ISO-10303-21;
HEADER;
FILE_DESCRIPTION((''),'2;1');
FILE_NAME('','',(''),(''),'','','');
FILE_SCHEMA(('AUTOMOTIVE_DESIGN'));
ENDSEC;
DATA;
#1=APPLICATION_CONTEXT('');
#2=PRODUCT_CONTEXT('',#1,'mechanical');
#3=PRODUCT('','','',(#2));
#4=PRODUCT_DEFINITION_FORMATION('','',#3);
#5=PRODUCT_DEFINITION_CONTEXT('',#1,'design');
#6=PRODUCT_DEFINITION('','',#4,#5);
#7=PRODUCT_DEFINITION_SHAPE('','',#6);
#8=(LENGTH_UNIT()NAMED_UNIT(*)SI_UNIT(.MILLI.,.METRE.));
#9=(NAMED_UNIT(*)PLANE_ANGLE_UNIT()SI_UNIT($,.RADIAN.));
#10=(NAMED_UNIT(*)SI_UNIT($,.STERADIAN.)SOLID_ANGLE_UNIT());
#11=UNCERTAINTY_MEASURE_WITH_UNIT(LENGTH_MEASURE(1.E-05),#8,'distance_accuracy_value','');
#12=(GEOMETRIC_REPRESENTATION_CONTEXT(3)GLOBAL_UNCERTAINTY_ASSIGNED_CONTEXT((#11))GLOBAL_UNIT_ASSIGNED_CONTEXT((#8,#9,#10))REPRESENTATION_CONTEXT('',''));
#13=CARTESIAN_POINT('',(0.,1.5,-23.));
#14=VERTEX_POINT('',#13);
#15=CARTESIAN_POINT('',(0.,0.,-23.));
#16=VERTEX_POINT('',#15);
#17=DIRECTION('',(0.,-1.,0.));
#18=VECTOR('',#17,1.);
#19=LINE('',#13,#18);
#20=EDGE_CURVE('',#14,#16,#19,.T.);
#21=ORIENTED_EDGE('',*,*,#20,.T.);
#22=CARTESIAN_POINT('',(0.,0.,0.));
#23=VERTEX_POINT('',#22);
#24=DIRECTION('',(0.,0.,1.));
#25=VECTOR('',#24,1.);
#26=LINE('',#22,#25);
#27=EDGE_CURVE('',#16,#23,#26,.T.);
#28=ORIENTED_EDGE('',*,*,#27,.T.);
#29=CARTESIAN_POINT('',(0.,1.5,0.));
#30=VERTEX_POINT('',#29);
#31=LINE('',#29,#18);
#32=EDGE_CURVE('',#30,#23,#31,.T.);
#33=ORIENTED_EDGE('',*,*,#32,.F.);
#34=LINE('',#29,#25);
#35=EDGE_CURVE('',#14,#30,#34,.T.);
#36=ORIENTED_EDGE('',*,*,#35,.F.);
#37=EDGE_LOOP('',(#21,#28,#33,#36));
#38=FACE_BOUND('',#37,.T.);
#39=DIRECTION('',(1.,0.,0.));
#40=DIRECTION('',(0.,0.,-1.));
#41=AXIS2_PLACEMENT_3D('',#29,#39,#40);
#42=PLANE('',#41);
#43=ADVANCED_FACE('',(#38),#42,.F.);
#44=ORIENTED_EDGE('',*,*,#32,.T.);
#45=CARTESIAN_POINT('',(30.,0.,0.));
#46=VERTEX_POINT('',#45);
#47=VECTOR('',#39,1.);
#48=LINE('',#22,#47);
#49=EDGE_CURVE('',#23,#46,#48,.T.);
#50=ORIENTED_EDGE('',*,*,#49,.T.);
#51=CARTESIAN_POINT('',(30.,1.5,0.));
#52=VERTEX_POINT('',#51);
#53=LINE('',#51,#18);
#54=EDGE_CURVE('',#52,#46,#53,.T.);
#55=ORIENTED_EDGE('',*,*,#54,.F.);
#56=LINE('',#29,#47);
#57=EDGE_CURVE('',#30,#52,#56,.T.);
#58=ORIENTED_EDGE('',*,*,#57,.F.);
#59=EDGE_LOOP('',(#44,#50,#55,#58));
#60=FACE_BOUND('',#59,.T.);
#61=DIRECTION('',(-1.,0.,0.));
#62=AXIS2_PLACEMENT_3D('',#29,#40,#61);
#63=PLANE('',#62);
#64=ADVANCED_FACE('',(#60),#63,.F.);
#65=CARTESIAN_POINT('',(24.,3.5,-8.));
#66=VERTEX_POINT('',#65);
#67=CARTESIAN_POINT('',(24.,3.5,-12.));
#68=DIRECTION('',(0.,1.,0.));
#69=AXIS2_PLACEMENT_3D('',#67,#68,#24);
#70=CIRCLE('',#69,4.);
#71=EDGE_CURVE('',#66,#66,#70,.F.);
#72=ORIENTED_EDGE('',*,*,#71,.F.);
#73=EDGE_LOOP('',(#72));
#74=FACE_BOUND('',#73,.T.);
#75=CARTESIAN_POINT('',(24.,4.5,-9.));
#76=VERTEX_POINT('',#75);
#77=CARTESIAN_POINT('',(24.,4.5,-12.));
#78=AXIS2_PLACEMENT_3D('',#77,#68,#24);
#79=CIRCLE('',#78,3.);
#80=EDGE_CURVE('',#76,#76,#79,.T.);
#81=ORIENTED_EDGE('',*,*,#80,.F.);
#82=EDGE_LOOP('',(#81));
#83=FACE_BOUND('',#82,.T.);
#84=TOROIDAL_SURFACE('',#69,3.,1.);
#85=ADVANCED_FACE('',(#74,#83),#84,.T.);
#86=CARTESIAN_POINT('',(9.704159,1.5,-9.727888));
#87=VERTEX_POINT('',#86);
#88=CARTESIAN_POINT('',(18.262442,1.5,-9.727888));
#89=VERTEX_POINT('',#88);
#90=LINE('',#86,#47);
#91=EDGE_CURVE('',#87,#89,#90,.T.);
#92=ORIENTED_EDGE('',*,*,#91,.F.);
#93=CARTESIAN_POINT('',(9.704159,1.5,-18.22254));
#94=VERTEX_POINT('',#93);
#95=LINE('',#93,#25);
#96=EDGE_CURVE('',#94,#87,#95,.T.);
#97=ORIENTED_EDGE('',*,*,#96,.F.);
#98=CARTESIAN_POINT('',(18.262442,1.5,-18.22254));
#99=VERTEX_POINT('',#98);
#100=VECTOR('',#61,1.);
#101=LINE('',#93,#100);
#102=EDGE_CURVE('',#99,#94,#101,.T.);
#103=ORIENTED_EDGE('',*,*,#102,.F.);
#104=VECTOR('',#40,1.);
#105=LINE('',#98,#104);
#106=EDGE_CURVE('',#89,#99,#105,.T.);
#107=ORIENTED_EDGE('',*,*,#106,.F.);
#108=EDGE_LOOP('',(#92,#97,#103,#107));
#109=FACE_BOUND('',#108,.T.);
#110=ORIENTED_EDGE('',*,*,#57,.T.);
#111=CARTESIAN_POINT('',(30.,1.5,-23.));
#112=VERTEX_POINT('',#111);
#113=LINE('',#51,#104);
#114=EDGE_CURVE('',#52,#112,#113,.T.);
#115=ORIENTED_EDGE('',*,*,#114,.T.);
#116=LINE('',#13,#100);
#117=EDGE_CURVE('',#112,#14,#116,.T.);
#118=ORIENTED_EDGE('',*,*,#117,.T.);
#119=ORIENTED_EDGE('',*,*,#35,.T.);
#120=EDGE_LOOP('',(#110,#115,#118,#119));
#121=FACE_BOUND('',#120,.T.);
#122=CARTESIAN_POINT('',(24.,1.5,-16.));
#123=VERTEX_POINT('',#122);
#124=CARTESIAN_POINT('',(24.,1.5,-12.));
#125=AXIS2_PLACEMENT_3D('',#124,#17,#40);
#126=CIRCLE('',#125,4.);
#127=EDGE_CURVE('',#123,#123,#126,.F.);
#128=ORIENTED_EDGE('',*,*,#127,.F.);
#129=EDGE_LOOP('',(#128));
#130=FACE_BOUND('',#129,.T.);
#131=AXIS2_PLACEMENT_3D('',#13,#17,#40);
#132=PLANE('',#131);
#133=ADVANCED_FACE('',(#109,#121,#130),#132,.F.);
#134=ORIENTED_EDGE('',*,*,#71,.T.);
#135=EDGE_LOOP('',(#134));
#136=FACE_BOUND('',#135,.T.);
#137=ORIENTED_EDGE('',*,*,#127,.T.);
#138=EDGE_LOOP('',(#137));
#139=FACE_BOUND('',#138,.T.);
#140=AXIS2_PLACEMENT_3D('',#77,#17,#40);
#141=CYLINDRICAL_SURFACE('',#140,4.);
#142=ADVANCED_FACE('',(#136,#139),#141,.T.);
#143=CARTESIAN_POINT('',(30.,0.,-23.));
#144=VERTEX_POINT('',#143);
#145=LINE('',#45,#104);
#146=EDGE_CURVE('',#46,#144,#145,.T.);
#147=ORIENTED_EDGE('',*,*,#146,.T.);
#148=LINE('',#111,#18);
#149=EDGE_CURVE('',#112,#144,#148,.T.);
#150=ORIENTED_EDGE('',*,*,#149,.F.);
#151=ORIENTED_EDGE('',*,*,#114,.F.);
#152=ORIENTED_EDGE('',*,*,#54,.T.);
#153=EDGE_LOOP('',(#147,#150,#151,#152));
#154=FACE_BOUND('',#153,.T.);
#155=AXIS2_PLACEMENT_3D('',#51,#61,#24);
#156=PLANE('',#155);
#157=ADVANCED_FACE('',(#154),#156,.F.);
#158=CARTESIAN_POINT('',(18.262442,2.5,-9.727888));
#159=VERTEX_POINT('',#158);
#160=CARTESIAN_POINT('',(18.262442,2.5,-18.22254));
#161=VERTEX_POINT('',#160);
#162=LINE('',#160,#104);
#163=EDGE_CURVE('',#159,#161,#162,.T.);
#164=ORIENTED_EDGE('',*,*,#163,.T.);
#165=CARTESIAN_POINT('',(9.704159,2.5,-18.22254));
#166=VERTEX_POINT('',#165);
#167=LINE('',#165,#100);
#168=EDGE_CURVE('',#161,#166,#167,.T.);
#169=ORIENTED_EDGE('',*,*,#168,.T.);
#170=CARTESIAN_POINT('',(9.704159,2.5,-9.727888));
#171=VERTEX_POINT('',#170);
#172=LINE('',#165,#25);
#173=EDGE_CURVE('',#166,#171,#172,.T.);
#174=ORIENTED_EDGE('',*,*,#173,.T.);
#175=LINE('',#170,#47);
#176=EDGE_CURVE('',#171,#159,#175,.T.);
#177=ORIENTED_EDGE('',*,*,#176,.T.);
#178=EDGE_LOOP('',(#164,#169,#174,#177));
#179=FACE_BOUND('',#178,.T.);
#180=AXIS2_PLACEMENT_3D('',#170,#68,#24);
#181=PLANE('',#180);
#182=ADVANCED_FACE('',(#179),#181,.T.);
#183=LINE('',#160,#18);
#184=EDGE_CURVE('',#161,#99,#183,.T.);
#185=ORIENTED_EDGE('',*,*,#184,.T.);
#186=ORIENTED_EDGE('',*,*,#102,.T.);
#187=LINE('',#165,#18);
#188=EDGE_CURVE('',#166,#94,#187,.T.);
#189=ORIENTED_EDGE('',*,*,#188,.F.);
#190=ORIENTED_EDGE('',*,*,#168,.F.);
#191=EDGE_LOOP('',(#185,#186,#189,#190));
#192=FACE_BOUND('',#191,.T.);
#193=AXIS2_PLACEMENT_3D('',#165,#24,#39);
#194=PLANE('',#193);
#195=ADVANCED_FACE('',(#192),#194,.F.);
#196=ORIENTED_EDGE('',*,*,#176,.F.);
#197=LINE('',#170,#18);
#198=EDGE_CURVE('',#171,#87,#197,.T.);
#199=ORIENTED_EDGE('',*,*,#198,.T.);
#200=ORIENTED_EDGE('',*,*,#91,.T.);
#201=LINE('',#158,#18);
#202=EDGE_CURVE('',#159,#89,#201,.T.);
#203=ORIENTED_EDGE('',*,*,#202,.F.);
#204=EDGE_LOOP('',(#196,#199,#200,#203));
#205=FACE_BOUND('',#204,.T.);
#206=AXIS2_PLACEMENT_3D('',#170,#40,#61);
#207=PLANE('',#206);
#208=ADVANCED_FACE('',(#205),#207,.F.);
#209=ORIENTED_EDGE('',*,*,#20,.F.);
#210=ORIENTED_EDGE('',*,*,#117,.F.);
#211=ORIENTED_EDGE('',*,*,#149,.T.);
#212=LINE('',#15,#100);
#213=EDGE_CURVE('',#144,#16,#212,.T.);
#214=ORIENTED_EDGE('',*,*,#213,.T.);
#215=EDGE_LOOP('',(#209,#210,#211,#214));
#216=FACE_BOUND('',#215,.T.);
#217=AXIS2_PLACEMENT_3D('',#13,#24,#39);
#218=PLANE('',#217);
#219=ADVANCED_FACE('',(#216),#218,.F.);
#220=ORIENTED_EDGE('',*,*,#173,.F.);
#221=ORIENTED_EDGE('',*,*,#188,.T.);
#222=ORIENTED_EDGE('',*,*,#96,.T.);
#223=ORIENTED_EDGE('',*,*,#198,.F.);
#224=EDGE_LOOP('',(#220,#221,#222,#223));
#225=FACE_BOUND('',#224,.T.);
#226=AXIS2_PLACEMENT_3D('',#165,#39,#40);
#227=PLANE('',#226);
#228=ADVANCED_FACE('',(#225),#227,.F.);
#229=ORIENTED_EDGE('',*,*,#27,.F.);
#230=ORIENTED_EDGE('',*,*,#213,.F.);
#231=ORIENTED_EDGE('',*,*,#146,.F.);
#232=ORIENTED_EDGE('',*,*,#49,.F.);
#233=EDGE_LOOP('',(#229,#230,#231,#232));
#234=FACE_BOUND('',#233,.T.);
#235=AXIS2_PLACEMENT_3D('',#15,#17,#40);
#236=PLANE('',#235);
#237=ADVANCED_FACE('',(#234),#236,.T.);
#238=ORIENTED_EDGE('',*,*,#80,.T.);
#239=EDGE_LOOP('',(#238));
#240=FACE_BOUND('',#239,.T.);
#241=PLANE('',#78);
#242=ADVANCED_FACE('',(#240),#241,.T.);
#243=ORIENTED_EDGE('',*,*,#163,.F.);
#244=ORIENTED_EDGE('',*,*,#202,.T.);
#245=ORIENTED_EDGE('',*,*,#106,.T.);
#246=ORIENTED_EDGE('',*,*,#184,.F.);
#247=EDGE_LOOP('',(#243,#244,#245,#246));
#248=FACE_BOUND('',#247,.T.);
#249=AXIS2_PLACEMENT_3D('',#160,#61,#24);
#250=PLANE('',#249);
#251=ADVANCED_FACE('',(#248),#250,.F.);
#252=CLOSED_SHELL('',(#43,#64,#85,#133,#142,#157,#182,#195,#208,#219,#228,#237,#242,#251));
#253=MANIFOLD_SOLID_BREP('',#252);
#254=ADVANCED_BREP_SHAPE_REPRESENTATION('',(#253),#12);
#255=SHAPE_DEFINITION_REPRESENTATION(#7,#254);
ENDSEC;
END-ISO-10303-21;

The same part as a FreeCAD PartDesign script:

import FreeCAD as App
import Part
import Sketcher

V = App.Vector
Q = App.Units.Quantity


def edges_at(feature, points):
    """Names of the edges that pass closest to the given points."""
    edges = feature.Shape.Edges
    near = lambda p: min(range(len(edges)), key=lambda i: edges[i].distToShape(Part.Vertex(*p))[0])
    return sorted({f"Edge{near(p) + 1}" for p in points})


def add_polygon(sketch, points):
    """Adds a closed chain of lines whose ends are joined by coincident constraints."""
    first, n = sketch.GeometryCount, len(points)
    for a, b in zip(points, points[1:] + points[:1]):
        sketch.addGeometry(Part.LineSegment(App.Vector(*a, 0), App.Vector(*b, 0)), False)
    for i in range(n):
        sketch.addConstraint(Sketcher.Constraint("Coincident", first + i, 2, first + (i + 1) % n, 1))

doc = App.newDocument("Part")
params = doc.addObject("Spreadsheet::Sheet", "Params")
for row, (alias, value) in enumerate([
    ("sketch1_width", "30 mm"),
    ("sketch1_height", "23 mm"),
    ("pad1_length", "1.5 mm"),
    ("pad2_length", "1 mm"),
    ("sketch3_diameter", "8 mm"),
    ("pad3_length", "3 mm"),
    ("fillet_radius", "1 mm"),
], start=1):
    params.set(f"A{row}", alias)
    params.set(f"B{row}", "=" + value)
    params.setAlias(f"B{row}", alias)

body = doc.addObject("PartDesign::Body", "Body")

# Sketch on XZ plane
sketch1 = body.newObject("Sketcher::SketchObject", "Sketch")
sketch1.AttachmentSupport = (doc.getObject("XZ_Plane"), [""])
sketch1.MapMode = "FlatFace"
add_polygon(sketch1, [(0, -23), (0, 0), (30, 0), (30, -23)])  # lines 0-3
sketch1.addConstraint([
    Sketcher.Constraint("Vertical", 0),
    Sketcher.Constraint("Horizontal", 1),
    Sketcher.Constraint("Vertical", 2),
    Sketcher.Constraint("Horizontal", 3),
    Sketcher.Constraint("Coincident", 0, 2, -1, 1),
    Sketcher.Constraint("DistanceX", 1, 1, 1, 2, Q("30 mm")),
    Sketcher.Constraint("DistanceY", 0, 1, 0, 2, Q("23 mm")),
])
sketch1.setExpression("Constraints[9]", "Params.sketch1_width")
sketch1.setExpression("Constraints[10]", "Params.sketch1_height")
pad1 = body.newObject("PartDesign::Pad", "Pad")
pad1.Profile = sketch1
pad1.setExpression("Length", "Params.pad1_length")
pad1.Reversed = True

# Sketch on XZ plane
sketch2 = body.newObject("Sketcher::SketchObject", "Sketch001")
sketch2.AttachmentSupport = (doc.getObject("XZ_Plane"), [""])
sketch2.MapMode = "FlatFace"
sketch2.AttachmentOffset = App.Placement(V(0, 0, -1.5), App.Rotation())
add_polygon(sketch2, [(18, -10), (18, -18), (10, -18), (10, -10)])  # lines 0-3
sketch2.addConstraint([
    Sketcher.Constraint("Vertical", 0),
    Sketcher.Constraint("Horizontal", 1),
    Sketcher.Constraint("Vertical", 2),
    Sketcher.Constraint("Horizontal", 3),
    Sketcher.Constraint("DistanceY", 0, 2, 0, 1, Q("8.494652 mm")),
    Sketcher.Constraint("DistanceX", 1, 2, 1, 1, Q("8.558282 mm")),
    Sketcher.Constraint("DistanceX", -1, 1, 0, 2, Q("18.262442 mm")),
    Sketcher.Constraint("DistanceY", 0, 2, -1, 1, Q("18.22254 mm")),
])
pad2 = body.newObject("PartDesign::Pad", "Pad001")
pad2.Profile = sketch2
pad2.setExpression("Length", "Params.pad2_length")
pad2.Reversed = True

# Sketch on XZ plane
sketch3 = body.newObject("Sketcher::SketchObject", "Sketch002")
sketch3.AttachmentSupport = (doc.getObject("XZ_Plane"), [""])
sketch3.MapMode = "FlatFace"
sketch3.AttachmentOffset = App.Placement(V(0, 0, -1.5), App.Rotation())
sketch3.addGeometry(Part.Circle(V(24, -12, 0), V(0, 0, 1), 4), False)
sketch3.addConstraint([
    Sketcher.Constraint("Diameter", 0, Q("8 mm")),
    Sketcher.Constraint("DistanceX", -1, 1, 0, 3, Q("24 mm")),
    Sketcher.Constraint("DistanceY", 0, 3, -1, 1, Q("12 mm")),
])
sketch3.setExpression("Constraints[0]", "Params.sketch3_diameter")
pad3 = body.newObject("PartDesign::Pad", "Pad002")
pad3.Profile = sketch3
pad3.setExpression("Length", "Params.pad3_length")
pad3.Reversed = True
doc.recompute()

fillet = body.newObject("PartDesign::Fillet", "Fillet")
fillet.Base = (pad3, edges_at(pad3, [(20, 4.5, -12)]))
fillet.setExpression("Radius", "Params.fillet_radius")

doc.recompute()
